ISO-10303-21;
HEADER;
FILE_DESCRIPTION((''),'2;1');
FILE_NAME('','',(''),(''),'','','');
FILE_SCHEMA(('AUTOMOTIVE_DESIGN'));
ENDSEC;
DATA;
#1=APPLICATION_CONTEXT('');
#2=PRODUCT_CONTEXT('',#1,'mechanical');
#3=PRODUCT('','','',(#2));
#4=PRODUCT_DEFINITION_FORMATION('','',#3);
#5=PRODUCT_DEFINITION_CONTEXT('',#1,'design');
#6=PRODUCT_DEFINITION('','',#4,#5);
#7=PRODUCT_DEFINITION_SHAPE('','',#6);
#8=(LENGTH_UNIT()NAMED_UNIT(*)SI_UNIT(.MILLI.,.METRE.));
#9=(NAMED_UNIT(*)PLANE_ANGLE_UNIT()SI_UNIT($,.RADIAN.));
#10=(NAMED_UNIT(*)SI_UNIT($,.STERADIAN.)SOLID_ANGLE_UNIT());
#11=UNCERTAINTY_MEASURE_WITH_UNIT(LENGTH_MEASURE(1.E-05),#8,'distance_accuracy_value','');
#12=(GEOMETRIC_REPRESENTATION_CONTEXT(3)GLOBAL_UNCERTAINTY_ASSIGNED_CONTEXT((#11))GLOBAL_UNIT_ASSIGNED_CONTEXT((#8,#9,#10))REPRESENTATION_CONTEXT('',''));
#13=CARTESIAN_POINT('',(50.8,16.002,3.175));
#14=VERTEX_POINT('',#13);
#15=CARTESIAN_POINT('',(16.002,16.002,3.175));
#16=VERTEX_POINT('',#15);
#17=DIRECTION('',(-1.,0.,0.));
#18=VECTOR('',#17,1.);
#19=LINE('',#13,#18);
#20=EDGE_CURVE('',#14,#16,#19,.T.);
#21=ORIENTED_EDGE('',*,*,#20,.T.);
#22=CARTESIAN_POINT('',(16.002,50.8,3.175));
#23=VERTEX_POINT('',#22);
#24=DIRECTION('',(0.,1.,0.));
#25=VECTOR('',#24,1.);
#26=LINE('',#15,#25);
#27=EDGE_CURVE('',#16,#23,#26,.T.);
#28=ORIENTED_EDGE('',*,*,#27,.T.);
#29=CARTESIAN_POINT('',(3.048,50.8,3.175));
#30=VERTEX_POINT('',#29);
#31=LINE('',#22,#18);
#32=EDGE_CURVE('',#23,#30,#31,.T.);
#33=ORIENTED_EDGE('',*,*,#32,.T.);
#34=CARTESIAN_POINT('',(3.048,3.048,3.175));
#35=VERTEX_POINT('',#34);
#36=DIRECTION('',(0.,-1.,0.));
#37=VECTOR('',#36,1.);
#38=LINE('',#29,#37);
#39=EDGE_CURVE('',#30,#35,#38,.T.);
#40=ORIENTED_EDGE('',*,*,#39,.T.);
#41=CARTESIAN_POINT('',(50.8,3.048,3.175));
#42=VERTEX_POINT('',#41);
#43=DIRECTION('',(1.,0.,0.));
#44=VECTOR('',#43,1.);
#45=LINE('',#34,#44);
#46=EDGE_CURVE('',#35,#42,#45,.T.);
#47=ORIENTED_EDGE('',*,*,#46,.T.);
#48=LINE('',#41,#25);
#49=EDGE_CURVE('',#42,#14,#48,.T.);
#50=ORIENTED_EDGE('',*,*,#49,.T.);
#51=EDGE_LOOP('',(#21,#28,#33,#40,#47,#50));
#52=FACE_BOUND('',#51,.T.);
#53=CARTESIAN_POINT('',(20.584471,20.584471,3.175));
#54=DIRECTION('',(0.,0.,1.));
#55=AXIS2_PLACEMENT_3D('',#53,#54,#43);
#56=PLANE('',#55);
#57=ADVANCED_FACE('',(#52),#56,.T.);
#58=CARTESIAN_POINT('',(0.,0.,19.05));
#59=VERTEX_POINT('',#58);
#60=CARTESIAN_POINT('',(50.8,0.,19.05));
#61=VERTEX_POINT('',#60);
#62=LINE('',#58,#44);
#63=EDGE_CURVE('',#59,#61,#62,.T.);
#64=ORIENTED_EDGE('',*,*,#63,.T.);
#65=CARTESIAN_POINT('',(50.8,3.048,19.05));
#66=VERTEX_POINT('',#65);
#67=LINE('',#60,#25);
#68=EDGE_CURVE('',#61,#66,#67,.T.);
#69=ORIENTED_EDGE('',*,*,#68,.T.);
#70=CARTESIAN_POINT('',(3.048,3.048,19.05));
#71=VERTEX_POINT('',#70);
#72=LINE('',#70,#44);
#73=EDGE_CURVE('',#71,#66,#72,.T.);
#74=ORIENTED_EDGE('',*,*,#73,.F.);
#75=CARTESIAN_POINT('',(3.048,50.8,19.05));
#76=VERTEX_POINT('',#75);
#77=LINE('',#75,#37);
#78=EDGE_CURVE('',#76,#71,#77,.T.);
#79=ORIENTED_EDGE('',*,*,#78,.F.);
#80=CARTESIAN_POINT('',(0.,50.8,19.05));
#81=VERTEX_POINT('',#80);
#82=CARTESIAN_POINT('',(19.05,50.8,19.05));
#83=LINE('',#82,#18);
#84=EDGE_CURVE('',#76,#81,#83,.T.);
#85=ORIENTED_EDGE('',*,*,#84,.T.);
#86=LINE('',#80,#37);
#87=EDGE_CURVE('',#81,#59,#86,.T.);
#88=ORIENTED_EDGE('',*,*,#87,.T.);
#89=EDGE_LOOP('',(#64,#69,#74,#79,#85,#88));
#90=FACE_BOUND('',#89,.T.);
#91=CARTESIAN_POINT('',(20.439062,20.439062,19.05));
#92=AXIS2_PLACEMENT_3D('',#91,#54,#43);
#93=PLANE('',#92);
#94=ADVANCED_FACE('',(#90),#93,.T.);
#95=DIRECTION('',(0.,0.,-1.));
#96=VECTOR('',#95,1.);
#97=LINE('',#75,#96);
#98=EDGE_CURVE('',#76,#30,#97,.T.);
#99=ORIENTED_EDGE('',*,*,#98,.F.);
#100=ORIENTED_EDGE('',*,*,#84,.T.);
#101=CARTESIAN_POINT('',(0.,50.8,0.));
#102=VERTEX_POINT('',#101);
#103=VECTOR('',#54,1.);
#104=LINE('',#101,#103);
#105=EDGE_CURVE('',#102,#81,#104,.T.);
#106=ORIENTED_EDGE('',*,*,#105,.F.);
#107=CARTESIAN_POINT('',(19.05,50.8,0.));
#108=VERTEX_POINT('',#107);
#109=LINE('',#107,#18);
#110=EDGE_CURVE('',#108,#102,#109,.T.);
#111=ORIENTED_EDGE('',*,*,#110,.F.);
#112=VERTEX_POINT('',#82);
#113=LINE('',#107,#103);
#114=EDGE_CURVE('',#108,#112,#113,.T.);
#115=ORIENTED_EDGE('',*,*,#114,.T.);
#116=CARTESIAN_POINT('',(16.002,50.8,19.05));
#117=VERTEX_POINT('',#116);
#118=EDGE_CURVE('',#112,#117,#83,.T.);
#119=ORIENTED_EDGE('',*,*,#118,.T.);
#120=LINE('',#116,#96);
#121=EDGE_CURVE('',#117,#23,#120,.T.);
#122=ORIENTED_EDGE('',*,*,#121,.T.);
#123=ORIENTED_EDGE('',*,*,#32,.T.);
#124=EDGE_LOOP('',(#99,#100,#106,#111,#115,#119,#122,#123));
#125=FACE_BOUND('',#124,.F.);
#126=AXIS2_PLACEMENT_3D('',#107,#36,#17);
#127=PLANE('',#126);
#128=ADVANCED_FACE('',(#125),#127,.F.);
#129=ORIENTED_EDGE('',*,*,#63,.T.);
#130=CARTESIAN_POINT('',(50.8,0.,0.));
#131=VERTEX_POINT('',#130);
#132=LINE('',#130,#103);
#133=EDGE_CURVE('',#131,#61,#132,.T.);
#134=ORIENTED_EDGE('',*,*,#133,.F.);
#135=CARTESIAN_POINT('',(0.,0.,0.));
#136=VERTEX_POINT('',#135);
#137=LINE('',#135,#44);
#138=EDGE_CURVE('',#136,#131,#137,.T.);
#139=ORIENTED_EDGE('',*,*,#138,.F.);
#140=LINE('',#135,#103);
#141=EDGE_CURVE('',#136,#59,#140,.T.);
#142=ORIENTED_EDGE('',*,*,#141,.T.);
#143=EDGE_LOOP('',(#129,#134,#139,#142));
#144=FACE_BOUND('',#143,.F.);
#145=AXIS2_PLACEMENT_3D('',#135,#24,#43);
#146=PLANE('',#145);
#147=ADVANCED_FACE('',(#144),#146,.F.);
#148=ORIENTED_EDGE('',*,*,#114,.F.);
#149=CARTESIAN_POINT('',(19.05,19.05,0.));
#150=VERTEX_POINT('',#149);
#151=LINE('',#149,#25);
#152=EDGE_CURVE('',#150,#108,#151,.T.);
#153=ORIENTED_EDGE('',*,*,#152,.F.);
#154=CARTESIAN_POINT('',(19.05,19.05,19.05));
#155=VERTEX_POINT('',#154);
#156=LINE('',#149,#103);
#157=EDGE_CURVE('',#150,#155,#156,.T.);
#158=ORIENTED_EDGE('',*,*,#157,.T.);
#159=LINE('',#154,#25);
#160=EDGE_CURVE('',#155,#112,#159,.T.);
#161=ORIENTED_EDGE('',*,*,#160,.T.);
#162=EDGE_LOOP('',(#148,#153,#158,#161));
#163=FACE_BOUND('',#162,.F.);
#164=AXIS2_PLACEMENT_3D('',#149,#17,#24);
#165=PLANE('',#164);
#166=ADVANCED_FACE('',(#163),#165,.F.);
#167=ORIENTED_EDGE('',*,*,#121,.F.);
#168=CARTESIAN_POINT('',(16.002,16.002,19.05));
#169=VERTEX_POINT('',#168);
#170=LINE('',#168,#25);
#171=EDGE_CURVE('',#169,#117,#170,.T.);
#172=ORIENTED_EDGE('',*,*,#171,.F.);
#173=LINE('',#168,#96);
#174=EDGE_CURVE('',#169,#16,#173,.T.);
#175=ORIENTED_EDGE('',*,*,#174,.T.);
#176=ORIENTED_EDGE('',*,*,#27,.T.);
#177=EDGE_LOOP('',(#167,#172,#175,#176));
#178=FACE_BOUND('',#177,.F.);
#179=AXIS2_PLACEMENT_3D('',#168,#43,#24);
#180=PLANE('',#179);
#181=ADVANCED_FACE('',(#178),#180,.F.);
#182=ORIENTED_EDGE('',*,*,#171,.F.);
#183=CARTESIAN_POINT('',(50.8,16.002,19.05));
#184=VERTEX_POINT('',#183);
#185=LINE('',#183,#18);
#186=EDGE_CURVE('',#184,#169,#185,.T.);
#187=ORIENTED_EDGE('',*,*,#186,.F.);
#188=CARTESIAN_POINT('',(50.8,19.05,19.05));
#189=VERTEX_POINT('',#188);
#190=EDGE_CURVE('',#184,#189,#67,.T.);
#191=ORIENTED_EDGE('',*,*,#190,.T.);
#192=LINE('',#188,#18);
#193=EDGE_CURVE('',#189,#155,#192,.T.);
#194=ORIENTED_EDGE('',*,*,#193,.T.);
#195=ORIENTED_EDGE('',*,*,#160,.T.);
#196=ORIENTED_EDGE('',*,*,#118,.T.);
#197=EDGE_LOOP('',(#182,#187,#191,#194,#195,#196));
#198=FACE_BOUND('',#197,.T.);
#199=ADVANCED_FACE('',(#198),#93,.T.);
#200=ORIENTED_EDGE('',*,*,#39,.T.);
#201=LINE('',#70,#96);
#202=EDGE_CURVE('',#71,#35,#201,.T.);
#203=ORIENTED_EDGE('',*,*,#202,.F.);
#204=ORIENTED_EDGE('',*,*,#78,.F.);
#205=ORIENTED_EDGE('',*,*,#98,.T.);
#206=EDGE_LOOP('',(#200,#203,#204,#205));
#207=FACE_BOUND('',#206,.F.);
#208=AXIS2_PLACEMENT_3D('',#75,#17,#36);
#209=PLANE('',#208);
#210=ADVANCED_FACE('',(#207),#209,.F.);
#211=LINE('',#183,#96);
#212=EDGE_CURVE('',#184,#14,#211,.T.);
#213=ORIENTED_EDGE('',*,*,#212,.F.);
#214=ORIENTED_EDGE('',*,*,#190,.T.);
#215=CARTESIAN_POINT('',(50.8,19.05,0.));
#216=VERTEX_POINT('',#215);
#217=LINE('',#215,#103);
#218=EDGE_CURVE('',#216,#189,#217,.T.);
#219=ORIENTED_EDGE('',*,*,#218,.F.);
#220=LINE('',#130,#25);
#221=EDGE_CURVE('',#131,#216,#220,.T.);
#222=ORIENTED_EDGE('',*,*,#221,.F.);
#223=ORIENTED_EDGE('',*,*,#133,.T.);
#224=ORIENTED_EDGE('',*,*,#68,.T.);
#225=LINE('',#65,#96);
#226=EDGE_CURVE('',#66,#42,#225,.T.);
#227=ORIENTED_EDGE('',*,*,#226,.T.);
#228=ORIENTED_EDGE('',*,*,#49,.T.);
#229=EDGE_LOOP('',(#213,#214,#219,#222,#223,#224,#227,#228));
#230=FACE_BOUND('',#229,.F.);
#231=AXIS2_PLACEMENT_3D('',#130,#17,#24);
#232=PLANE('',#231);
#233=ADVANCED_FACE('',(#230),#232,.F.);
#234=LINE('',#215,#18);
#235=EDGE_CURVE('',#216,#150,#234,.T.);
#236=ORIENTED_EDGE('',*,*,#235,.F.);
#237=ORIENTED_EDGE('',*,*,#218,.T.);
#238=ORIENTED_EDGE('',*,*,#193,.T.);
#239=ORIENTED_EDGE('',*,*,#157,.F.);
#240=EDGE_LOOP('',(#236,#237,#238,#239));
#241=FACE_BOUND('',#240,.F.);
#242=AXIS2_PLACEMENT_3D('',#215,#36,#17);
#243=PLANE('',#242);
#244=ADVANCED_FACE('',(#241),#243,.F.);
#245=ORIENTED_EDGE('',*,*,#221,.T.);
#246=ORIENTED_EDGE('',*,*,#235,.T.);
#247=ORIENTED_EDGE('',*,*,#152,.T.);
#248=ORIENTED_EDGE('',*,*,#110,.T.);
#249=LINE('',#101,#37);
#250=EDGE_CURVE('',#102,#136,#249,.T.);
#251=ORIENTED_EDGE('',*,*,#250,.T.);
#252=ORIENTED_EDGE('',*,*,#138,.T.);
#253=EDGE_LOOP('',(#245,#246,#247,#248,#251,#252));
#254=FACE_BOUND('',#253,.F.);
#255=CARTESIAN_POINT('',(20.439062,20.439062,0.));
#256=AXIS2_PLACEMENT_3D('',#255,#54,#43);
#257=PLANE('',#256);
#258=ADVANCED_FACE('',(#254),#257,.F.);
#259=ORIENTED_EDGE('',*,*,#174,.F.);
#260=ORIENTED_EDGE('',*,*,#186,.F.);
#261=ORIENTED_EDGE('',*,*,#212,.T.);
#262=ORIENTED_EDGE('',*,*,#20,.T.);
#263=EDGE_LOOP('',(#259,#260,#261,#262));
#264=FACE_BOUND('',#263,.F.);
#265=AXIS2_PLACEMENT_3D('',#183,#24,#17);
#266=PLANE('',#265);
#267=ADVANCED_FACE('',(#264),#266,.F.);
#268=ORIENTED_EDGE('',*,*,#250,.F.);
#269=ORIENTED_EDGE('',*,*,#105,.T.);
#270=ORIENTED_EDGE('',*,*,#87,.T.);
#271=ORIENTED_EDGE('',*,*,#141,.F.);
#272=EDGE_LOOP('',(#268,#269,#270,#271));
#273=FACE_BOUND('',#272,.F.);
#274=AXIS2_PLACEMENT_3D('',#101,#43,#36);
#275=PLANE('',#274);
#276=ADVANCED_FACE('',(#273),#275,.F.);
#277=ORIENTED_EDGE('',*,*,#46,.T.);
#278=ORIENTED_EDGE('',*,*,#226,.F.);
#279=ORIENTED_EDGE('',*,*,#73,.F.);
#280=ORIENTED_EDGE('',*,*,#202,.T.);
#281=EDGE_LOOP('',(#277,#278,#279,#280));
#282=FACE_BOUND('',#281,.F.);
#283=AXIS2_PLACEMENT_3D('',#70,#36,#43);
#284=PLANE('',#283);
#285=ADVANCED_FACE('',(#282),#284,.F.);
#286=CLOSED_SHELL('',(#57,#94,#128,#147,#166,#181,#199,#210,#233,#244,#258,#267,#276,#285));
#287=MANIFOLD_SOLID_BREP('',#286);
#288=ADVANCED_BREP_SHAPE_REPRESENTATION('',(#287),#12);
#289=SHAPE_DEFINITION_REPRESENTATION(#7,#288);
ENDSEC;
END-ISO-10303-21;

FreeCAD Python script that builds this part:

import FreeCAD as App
import Part
import Sketcher
from FreeCAD import Vector
Q = App.Units.Quantity

doc = App.newDocument("Part")
body = doc.addObject("PartDesign::Body", "Body")

# Sketch on XY plane
sketch1 = doc.addObject("Sketcher::SketchObject", "Sketch")
body.addObject(sketch1)
sketch1.AttachmentSupport = (doc.XY_Plane, [""])
sketch1.MapMode = "FlatFace"
sketch1.addGeometry([
    Part.LineSegment(Vector(0, 51, 0), Vector(0, 0, 0)),  # 0
    Part.LineSegment(Vector(0, 0, 0), Vector(51, 0, 0)),  # 1
    Part.LineSegment(Vector(51, 0, 0), Vector(51, 19, 0)),  # 2
    Part.LineSegment(Vector(51, 19, 0), Vector(19, 19, 0)),  # 3
    Part.LineSegment(Vector(19, 19, 0), Vector(19, 51, 0)),  # 4
    Part.LineSegment(Vector(19, 51, 0), Vector(0, 51, 0)),  # 5
], False)
sketch1.addConstraint([
    Sketcher.Constraint("Coincident", 0, 2, 1, 1),
    Sketcher.Constraint("Coincident", 1, 2, 2, 1),
    Sketcher.Constraint("Coincident", 2, 2, 3, 1),
    Sketcher.Constraint("Coincident", 3, 2, 4, 1),
    Sketcher.Constraint("Coincident", 4, 2, 5, 1),
    Sketcher.Constraint("Coincident", 5, 2, 0, 1),
    Sketcher.Constraint("Vertical", 0),
    Sketcher.Constraint("Horizontal", 1),
    Sketcher.Constraint("Vertical", 2),
    Sketcher.Constraint("Horizontal", 3),
    Sketcher.Constraint("Vertical", 4),
    Sketcher.Constraint("Horizontal", 5),
    Sketcher.Constraint("Coincident", 0, 2, -1, 1),
    Sketcher.Constraint("Equal", 1, 0),
    Sketcher.Constraint("Equal", 5, 2),
    Sketcher.Constraint("DistanceX", 1, 1, 1, 2, Q("2 in")),
    Sketcher.Constraint("DistanceX", 3, 2, 3, 1, Q("1.25 in")),
])
pad1 = doc.addObject("PartDesign::Pad", "Pad")
body.addObject(pad1)
pad1.Profile = sketch1
pad1.Length = Q("0.75 in")

# Sketch on XY plane
sketch2 = doc.addObject("Sketcher::SketchObject", "Sketch001")
body.addObject(sketch2)
sketch2.AttachmentSupport = (doc.XY_Plane, [""])
sketch2.MapMode = "FlatFace"
sketch2.AttachmentOffset = App.Placement(Vector(0, 0, 0.75 * 25.4), App.Rotation())
sketch2.addGeometry([
    Part.LineSegment(Vector(51, 16, 0), Vector(16, 16, 0)),  # 0
    Part.LineSegment(Vector(16, 16, 0), Vector(16, 51, 0)),  # 1
    Part.LineSegment(Vector(16, 51, 0), Vector(3, 51, 0)),  # 2
    Part.LineSegment(Vector(3, 51, 0), Vector(3, 3, 0)),  # 3
    Part.LineSegment(Vector(3, 3, 0), Vector(51, 3, 0)),  # 4
    Part.LineSegment(Vector(51, 3, 0), Vector(51, 16, 0)),  # 5
], False)
sketch2.addConstraint([
    Sketcher.Constraint("Coincident", 0, 2, 1, 1),
    Sketcher.Constraint("Coincident", 1, 2, 2, 1),
    Sketcher.Constraint("Coincident", 2, 2, 3, 1),
    Sketcher.Constraint("Coincident", 3, 2, 4, 1),
    Sketcher.Constraint("Coincident", 4, 2, 5, 1),
    Sketcher.Constraint("Coincident", 5, 2, 0, 1),
    Sketcher.Constraint("Horizontal", 0),
    Sketcher.Constraint("Vertical", 1),
    Sketcher.Constraint("Horizontal", 2),
    Sketcher.Constraint("Vertical", 3),
    Sketcher.Constraint("Horizontal", 4),
    Sketcher.Constraint("Vertical", 5),
    Sketcher.Constraint("Equal", 0, 1),
    Sketcher.Constraint("Equal", 4, 3),
    Sketcher.Constraint("DistanceY", -1, 1, 1, 2, Q("2 in")),
    Sketcher.Constraint("DistanceX", -1, 1, 4, 2, Q("2 in")),
    Sketcher.Constraint("DistanceX", 0, 2, 0, 1, Q("1.37 in")),
    Sketcher.Constraint("DistanceX", 2, 2, 2, 1, Q("0.51 in")),
])
pocket1 = doc.addObject("PartDesign::Pocket", "Pocket")
body.addObject(pocket1)
pocket1.Profile = sketch2
pocket1.Length = Q("0.625 in")

doc.recompute()
